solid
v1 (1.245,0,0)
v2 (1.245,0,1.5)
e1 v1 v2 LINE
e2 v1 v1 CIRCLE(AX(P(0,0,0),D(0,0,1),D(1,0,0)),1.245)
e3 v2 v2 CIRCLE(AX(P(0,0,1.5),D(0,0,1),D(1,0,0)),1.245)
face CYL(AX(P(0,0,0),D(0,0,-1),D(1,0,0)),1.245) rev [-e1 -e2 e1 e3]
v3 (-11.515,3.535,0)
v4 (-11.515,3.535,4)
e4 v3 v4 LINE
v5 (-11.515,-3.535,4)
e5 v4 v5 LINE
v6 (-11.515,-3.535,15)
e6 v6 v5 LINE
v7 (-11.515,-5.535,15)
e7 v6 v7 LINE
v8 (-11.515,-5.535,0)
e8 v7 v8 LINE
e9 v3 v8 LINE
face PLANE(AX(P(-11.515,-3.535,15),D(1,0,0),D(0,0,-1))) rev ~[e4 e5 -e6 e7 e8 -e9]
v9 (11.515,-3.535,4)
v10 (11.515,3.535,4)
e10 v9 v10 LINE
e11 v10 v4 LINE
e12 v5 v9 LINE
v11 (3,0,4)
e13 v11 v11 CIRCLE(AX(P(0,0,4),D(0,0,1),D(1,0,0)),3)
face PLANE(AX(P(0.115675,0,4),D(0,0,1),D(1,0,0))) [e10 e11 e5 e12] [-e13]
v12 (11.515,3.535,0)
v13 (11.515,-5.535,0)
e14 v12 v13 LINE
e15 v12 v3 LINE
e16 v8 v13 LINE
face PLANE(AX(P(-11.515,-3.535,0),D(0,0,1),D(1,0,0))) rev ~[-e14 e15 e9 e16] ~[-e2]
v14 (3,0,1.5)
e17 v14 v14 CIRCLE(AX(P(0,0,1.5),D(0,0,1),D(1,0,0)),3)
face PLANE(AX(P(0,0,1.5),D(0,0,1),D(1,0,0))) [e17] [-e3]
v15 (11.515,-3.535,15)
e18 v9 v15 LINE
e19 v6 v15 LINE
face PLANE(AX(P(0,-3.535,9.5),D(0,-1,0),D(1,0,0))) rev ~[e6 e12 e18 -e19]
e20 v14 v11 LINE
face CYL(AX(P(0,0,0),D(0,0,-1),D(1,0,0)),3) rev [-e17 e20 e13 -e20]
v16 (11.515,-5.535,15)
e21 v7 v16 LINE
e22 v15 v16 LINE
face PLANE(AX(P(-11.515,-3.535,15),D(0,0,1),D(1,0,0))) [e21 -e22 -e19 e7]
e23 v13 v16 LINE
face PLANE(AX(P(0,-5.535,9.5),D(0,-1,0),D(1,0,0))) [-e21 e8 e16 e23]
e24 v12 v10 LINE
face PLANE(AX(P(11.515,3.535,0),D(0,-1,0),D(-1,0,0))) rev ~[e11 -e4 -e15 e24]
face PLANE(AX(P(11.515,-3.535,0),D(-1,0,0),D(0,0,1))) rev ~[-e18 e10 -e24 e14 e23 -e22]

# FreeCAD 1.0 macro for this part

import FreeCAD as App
import Part
import Sketcher
from FreeCAD import Vector
Q = App.Units.Quantity


def add_polygon(sketch, points):
    """Adds a closed chain of lines whose ends are joined by coincident constraints."""
    first, n = sketch.GeometryCount, len(points)
    for a, b in zip(points, points[1:] + points[:1]):
        sketch.addGeometry(Part.LineSegment(App.Vector(*a, 0), App.Vector(*b, 0)), False)
    for i in range(n):
        sketch.addConstraint(Sketcher.Constraint("Coincident", first + i, 2, first + (i + 1) % n, 1))

doc = App.newDocument("Part")
body = doc.addObject("PartDesign::Body", "Body")

# Sketch on XY plane
sketch1 = body.newObject("Sketcher::SketchObject", "Sketch")
sketch1.AttachmentSupport = (doc.getObject("XY_Plane"), [""])
sketch1.MapMode = "FlatFace"
sketch1.addGeometry(Part.Circle(Vector(0, 0, 0), Vector(0, 0, 1), 3), False)
sketch1.addGeometry(Part.Circle(Vector(0, 0, 0), Vector(0, 0, 1), 1.2), False)
sketch1.addConstraint(Sketcher.Constraint("Coincident", 0, 3, -1, 1))
sketch1.addConstraint(Sketcher.Constraint("Coincident", 1, 3, -1, 1))
sketch1.addConstraint(Sketcher.Constraint("Diameter", 0, Q("6 mm")))
sketch1.addConstraint(Sketcher.Constraint("Diameter", 1, Q("2.49 mm")))
pad1 = body.newObject("PartDesign::Pad", "Pad")
pad1.Profile = sketch1
pad1.Length = 1.5

# Sketch on XY plane
sketch2 = body.newObject("Sketcher::SketchObject", "Sketch001")
sketch2.AttachmentSupport = (doc.getObject("XY_Plane"), [""])
sketch2.MapMode = "FlatFace"
add_polygon(sketch2, [(-11.5, 3.5), (-11.5, -3.5), (11.5, -3.5), (11.5, 3.5)])  # lines 0-3
sketch2.addGeometry(Part.Circle(Vector(0, 0, 0), Vector(0, 0, 1), 3), False)  # 4
sketch2.addConstraint(Sketcher.Constraint("Vertical", 0))
sketch2.addConstraint(Sketcher.Constraint("Horizontal", 1))
sketch2.addConstraint(Sketcher.Constraint("Vertical", 2))
sketch2.addConstraint(Sketcher.Constraint("Horizontal", 3))
sketch2.addConstraint(Sketcher.Constraint("Coincident", 4, 3, -1, 1))
sketch2.addConstraint(Sketcher.Constraint("Symmetric", 0, 2, 2, 2, -1, 1))
sketch2.addConstraint(Sketcher.Constraint("Diameter", 4, Q("6 mm")))
sketch2.addConstraint(Sketcher.Constraint("DistanceX", 1, 1, 1, 2, Q("23.03 mm")))
sketch2.addConstraint(Sketcher.Constraint("DistanceY", 0, 2, 0, 1, Q("7.07 mm")))
pad2 = body.newObject("PartDesign::Pad", "Pad001")
pad2.Profile = sketch2
pad2.Length = 4

# Sketch on XZ plane
sketch3 = body.newObject("Sketcher::SketchObject", "Sketch002")
sketch3.AttachmentSupport = (doc.getObject("XZ_Plane"), [""])
sketch3.MapMode = "FlatFace"
sketch3.AttachmentOffset = App.Placement(Vector(0, 0, 3.535), App.Rotation())
add_polygon(sketch3, [(-12, 15), (-12, 0), (12, 0), (12, 15)])  # lines 0-3
sketch3.addConstraint(Sketcher.Constraint("Vertical", 0))
sketch3.addConstraint(Sketcher.Constraint("Horizontal", 1))
sketch3.addConstraint(Sketcher.Constraint("Vertical", 2))
sketch3.addConstraint(Sketcher.Constraint("Horizontal", 3))
sketch3.addConstraint(Sketcher.Constraint("Symmetric", 0, 2, 1, 2, -1, 1))
sketch3.addConstraint(Sketcher.Constraint("DistanceY", 0, 2, 0, 1, Q("15 mm")))
sketch3.addConstraint(Sketcher.Constraint("DistanceX", 1, 1, 1, 2, Q("23.03 mm")))
pad3 = body.newObject("PartDesign::Pad", "Pad002")
pad3.Profile = sketch3
pad3.Length = 2

doc.recompute()
